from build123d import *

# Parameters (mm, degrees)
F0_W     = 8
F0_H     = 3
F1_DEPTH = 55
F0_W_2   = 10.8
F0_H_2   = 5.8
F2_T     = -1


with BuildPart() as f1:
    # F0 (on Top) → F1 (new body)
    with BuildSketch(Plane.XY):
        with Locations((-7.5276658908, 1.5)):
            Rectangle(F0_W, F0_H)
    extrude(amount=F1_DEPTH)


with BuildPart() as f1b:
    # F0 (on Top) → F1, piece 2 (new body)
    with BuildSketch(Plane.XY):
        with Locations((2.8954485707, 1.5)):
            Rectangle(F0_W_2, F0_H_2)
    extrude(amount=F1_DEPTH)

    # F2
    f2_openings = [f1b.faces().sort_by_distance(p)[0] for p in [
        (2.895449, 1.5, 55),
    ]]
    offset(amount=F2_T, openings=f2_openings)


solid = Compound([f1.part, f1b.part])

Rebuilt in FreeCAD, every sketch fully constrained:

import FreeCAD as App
import Part
import Sketcher
from FreeCAD import Vector


def faces_at(feature, points):
    """Names of the faces that lie closest to the given points."""
    faces = feature.Shape.Faces
    near = lambda p: min(range(len(faces)), key=lambda i: faces[i].distToShape(Part.Vertex(*p))[0])
    return sorted({f"Face{near(p) + 1}" for p in points})


def add_polygon(sketch, points):
    """Adds a closed chain of lines whose ends are joined by coincident constraints."""
    first, n = sketch.GeometryCount, len(points)
    for a, b in zip(points, points[1:] + points[:1]):
        sketch.addGeometry(Part.LineSegment(App.Vector(*a, 0), App.Vector(*b, 0)), False)
    for i in range(n):
        sketch.addConstraint(Sketcher.Constraint("Coincident", first + i, 2, first + (i + 1) % n, 1))

doc = App.newDocument("Part")
params = doc.addObject("Spreadsheet::Sheet", "Params")
for row, (alias, value) in enumerate([
    ("sketch1_width", "8 mm"),
    ("sketch1_height", "3 mm"),
    ("pad1_length", "55 mm"),
    ("sketch2_width", "10.8 mm"),
    ("sketch2_height", "5.8 mm"),
    ("pad2_length", "55 mm"),
    ("thickness_wall", "1 mm"),
], start=1):
    params.set(f"A{row}", alias)
    params.set(f"B{row}", "=" + value)
    params.setAlias(f"B{row}", alias)

body = doc.addObject("PartDesign::Body", "Body")

# Sketch on XY plane
sketch1 = body.newObject("Sketcher::SketchObject", "Sketch")
sketch1.AttachmentSupport = (doc.getObject("XY_Plane"), [""])
sketch1.MapMode = "FlatFace"
add_polygon(sketch1, [(-11.527666, 3), (-11.527666, 0), (-3.527666, 0), (-3.527666, 3)])  # lines 0-3
sketch1.addConstraint([
    Sketcher.Constraint("Vertical", 0),
    Sketcher.Constraint("Horizontal", 1),
    Sketcher.Constraint("Vertical", 2),
    Sketcher.Constraint("Horizontal", 3),
    Sketcher.Constraint("PointOnObject", 0, 2, -1),
    Sketcher.Constraint("DistanceX", 1, 1, 1, 2, 8.0),
    Sketcher.Constraint("DistanceY", 0, 2, 0, 1, 3.0),
    Sketcher.Constraint("DistanceX", 0, 2, -1, 1, 11.527666),
])
sketch1.setExpression("Constraints[9]", "Params.sketch1_width")
sketch1.setExpression("Constraints[10]", "Params.sketch1_height")
pad1 = body.newObject("PartDesign::Pad", "Pad")
pad1.Profile = sketch1
pad1.setExpression("Length", "Params.pad1_length")
body2 = doc.addObject("PartDesign::Body", "Body001")

# Sketch on XY plane
sketch2 = body2.newObject("Sketcher::SketchObject", "Sketch001")
sketch2.AttachmentSupport = (doc.getObject("XY_Plane001"), [""])
sketch2.MapMode = "FlatFace"
add_polygon(sketch2, [(-2.504551, 4.4), (-2.504551, -1.4), (8.295449, -1.4), (8.295449, 4.4)])  # lines 0-3
sketch2.addConstraint([
    Sketcher.Constraint("Vertical", 0),
    Sketcher.Constraint("Horizontal", 1),
    Sketcher.Constraint("Vertical", 2),
    Sketcher.Constraint("Horizontal", 3),
    Sketcher.Constraint("DistanceX", 1, 1, 1, 2, 10.8),
    Sketcher.Constraint("DistanceY", 0, 2, 0, 1, 5.8),
    Sketcher.Constraint("DistanceY", 0, 2, -1, 1, 1.4),
    Sketcher.Constraint("DistanceX", 0, 2, -1, 1, 2.504551),
])
sketch2.setExpression("Constraints[8]", "Params.sketch2_width")
sketch2.setExpression("Constraints[9]", "Params.sketch2_height")
pad2 = body2.newObject("PartDesign::Pad", "Pad001")
pad2.Profile = sketch2
pad2.setExpression("Length", "Params.pad2_length")
doc.recompute()

thickness = body2.newObject("PartDesign::Thickness", "Thickness")
thickness.Base = (pad2, faces_at(pad2, [(2.895, 1.5, 55)]))
thickness.setExpression("Value", "Params.thickness_wall")
thickness.Reversed = True
thickness.Join = "Arc"

doc.recompute()
